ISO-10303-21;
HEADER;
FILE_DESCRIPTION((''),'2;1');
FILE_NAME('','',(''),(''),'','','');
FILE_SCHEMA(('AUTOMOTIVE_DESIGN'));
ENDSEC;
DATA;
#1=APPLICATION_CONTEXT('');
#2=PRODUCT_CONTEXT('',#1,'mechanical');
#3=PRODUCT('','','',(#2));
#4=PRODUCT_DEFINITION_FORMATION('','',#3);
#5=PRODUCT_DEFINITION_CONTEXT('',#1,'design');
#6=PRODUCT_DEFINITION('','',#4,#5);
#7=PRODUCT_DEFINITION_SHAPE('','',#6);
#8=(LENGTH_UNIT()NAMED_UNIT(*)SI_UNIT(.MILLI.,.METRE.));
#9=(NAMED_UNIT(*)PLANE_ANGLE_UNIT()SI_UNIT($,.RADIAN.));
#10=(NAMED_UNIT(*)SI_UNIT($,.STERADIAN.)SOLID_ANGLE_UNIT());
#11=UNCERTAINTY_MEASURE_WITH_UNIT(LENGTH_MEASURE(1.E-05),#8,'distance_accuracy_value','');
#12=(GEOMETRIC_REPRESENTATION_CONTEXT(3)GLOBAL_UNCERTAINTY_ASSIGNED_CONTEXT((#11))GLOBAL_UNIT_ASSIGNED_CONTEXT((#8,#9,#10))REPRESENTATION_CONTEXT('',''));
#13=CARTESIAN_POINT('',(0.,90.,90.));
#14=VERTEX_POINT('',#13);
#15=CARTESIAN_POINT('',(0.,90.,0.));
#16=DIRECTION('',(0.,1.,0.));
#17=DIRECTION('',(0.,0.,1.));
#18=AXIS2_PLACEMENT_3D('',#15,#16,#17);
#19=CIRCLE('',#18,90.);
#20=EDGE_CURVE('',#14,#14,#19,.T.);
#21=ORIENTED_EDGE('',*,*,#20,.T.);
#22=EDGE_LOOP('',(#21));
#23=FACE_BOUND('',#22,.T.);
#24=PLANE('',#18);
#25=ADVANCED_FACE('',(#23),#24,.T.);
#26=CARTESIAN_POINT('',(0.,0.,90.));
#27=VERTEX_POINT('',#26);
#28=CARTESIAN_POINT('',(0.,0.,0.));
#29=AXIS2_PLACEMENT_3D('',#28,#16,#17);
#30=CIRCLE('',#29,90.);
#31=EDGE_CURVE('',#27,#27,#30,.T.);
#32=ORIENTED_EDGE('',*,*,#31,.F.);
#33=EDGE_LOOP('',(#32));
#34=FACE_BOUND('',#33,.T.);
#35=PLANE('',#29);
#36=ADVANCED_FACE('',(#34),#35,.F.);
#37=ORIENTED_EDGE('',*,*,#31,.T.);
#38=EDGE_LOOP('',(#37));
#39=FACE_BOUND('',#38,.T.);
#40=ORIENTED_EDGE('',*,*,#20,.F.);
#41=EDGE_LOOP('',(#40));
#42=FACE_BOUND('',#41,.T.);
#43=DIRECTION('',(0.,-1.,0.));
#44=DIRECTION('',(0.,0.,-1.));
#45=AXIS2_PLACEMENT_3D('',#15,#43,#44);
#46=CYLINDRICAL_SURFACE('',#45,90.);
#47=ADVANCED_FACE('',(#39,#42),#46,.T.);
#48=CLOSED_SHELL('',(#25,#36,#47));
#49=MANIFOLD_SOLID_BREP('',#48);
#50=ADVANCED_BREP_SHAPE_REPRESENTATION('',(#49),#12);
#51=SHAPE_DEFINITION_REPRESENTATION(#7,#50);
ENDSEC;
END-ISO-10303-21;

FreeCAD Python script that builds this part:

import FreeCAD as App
import Part
import Sketcher
Q = App.Units.Quantity

doc = App.newDocument("Part")
params = doc.addObject("Spreadsheet::Sheet", "Params")
for row, (alias, value) in enumerate([
    ("sketch1_diameter", "180 mm"),
    ("pad1_length", "90 mm"),
], start=1):
    params.set(f"A{row}", alias)
    params.set(f"B{row}", "=" + value)
    params.setAlias(f"B{row}", alias)

body = doc.addObject("PartDesign::Body", "Body")

# Sketch on XZ plane
sketch1 = body.newObject("Sketcher::SketchObject", "Sketch")
sketch1.AttachmentSupport = (doc.getObject("XZ_Plane"), [""])
sketch1.MapMode = "FlatFace"
sketch1.addGeometry(Part.Circle(App.Vector(0, 0, 0), App.Vector(0, 0, 1), 90), False)
sketch1.addConstraint([
    Sketcher.Constraint("Coincident", 0, 3, -1, 1),
    Sketcher.Constraint("Diameter", 0, Q("180 mm")),
])
sketch1.setExpression("Constraints[1]", "Params.sketch1_diameter")
pad1 = body.newObject("PartDesign::Pad", "Pad")
pad1.Profile = sketch1
pad1.setExpression("Length", "Params.pad1_length")
pad1.Reversed = True

doc.recompute()
